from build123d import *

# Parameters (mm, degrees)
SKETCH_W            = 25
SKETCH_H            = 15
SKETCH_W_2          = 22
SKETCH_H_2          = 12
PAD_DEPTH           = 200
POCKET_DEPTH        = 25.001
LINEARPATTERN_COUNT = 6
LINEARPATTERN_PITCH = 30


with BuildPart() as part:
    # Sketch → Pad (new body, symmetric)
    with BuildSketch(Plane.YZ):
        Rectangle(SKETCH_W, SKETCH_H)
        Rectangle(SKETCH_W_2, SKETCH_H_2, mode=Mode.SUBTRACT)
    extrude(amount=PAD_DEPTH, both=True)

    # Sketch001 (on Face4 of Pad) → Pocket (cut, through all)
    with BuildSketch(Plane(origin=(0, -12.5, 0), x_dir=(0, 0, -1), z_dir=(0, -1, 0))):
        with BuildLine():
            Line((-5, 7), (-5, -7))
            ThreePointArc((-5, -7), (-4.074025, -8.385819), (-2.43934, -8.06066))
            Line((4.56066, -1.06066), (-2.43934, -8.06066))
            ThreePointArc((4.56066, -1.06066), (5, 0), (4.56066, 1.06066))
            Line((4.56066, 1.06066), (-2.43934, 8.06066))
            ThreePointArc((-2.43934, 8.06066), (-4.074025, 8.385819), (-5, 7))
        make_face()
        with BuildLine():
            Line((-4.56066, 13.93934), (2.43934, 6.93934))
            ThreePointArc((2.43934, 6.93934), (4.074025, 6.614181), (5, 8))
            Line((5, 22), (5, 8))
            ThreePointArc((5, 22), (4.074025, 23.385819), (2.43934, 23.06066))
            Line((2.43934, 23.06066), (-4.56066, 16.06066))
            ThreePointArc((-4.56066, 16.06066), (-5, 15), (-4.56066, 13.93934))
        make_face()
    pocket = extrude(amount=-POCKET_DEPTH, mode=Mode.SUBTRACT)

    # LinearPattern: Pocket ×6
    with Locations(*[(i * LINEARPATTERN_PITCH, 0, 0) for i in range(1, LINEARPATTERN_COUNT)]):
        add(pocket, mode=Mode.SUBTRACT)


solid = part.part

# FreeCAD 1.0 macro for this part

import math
import FreeCAD as App
import Part
import Sketcher

V = App.Vector

doc = App.newDocument("Part")
body = doc.addObject("PartDesign::Body", "Body")

sketch1 = body.newObject("Sketcher::SketchObject", "Sketch")
sketch1.AttachmentSupport = (doc.getObject("YZ_Plane"), [""])
sketch1.MapMode = "FlatFace"
sketch1.addGeometry([
    Part.LineSegment(V(-12, 8, 0), V(-12, -8, 0)),
    Part.LineSegment(V(-12, -8, 0), V(12, -8, 0)),
    Part.LineSegment(V(12, -8, 0), V(12, 8, 0)),
    Part.LineSegment(V(12, 8, 0), V(-12, 8, 0)),
    Part.LineSegment(V(11, -6, 0), V(-11, -6, 0)),
    Part.LineSegment(V(-11, -6, 0), V(-11, 6, 0)),
    Part.LineSegment(V(-11, 6, 0), V(11, 6, 0)),
    Part.LineSegment(V(11, 6, 0), V(11, -6, 0)),
], False)
sketch1.addConstraint([
    Sketcher.Constraint("Coincident", 0, 2, 1, 1),
    Sketcher.Constraint("Coincident", 1, 2, 2, 1),
    Sketcher.Constraint("Coincident", 2, 2, 3, 1),
    Sketcher.Constraint("Coincident", 3, 2, 0, 1),
    Sketcher.Constraint("Coincident", 4, 2, 5, 1),
    Sketcher.Constraint("Coincident", 5, 2, 6, 1),
    Sketcher.Constraint("Coincident", 6, 2, 7, 1),
    Sketcher.Constraint("Coincident", 7, 2, 4, 1),
    Sketcher.Constraint("Vertical", 0),
    Sketcher.Constraint("Horizontal", 1),
    Sketcher.Constraint("Vertical", 2),
    Sketcher.Constraint("Horizontal", 3),
    Sketcher.Constraint("Horizontal", 4),
    Sketcher.Constraint("Vertical", 5),
    Sketcher.Constraint("Horizontal", 6),
    Sketcher.Constraint("Vertical", 7),
    Sketcher.Constraint("Symmetric", 0, 2, 2, 2, -1, 1),
    Sketcher.Constraint("Symmetric", 4, 2, 6, 2, -1, 1),
    Sketcher.Constraint("DistanceX", 1, 1, 1, 2, 25.0),
    Sketcher.Constraint("DistanceX", 4, 2, 4, 1, 22.0),
    Sketcher.Constraint("DistanceY", 0, 2, 0, 1, 15.0),
    Sketcher.Constraint("DistanceY", 5, 1, 5, 2, 12.0),
])
pad1 = body.newObject("PartDesign::Pad", "Pad")
pad1.Profile = sketch1
pad1.Length = 400
pad1.Midplane = True

sketch2 = body.newObject("Sketcher::SketchObject", "Sketch001")
sketch2.AttachmentSupport = (doc.getObject("XZ_Plane"), [""])
sketch2.MapMode = "FlatFace"
sketch2.AttachmentOffset = App.Placement(V(0, 0, 12.5), App.Rotation())
sketch2.addGeometry([
    Part.LineSegment(V(7, 5, 0), V(-7, 5, 0)),
    Part.ArcOfCircle(Part.Circle(V(-7, 3.5, 0), V(0, 0, 1), 1.5), math.radians(90), math.radians(225)),
    Part.LineSegment(V(-8.1, 2.4, 0), V(-1.1, -4.6, 0)),
    Part.ArcOfCircle(Part.Circle(V(0, -3.5, 0), V(0, 0, 1), 1.5), math.radians(-135), math.radians(-45)),
    Part.LineSegment(V(1.1, -4.6, 0), V(8.1, 2.4, 0)),
    Part.ArcOfCircle(Part.Circle(V(7, 3.5, 0), V(0, 0, 1), 1.5), math.radians(-45), math.radians(90)),
    Part.LineSegment(V(13.9, 4.6, 0), V(6.9, -2.4, 0)),
    Part.ArcOfCircle(Part.Circle(V(8, -3.5, 0), V(0, 0, 1), 1.5), math.radians(135), math.radians(270)),
    Part.LineSegment(V(8, -5, 0), V(22, -5, 0)),
    Part.ArcOfCircle(Part.Circle(V(22, -3.5, 0), V(0, 0, 1), 1.5), math.radians(-90), math.radians(45)),
    Part.LineSegment(V(23.1, -2.4, 0), V(16.1, 4.6, 0)),
    Part.ArcOfCircle(Part.Circle(V(15, 3.5, 0), V(0, 0, 1), 1.5), math.radians(45), math.radians(135)),
], False)
sketch2.addConstraint([
    Sketcher.Constraint("Tangent", 0, 2, 1, 1),
    Sketcher.Constraint("Tangent", 1, 2, 2, 1),
    Sketcher.Constraint("Tangent", 2, 2, 3, 1),
    Sketcher.Constraint("Tangent", 3, 2, 4, 1),
    Sketcher.Constraint("Tangent", 4, 2, 5, 1),
    Sketcher.Constraint("Tangent", 5, 2, 0, 1),
    Sketcher.Constraint("Tangent", 6, 2, 7, 1),
    Sketcher.Constraint("Tangent", 7, 2, 8, 1),
    Sketcher.Constraint("Tangent", 8, 2, 9, 1),
    Sketcher.Constraint("Tangent", 9, 2, 10, 1),
    Sketcher.Constraint("Tangent", 10, 2, 11, 1),
    Sketcher.Constraint("Tangent", 11, 2, 6, 1),
    Sketcher.Constraint("Horizontal", 0),
    Sketcher.Constraint("Horizontal", 8),
    Sketcher.Constraint("Equal", 1, 3),
    Sketcher.Constraint("Equal", 3, 5),
    Sketcher.Constraint("Equal", 5, 7),
    Sketcher.Constraint("Equal", 7, 9),
    Sketcher.Constraint("Equal", 9, 11),
    Sketcher.Constraint("Symmetric", 2, 2, 3, 2, -2),
    Sketcher.Constraint("Perpendicular", 2, 4),
    Sketcher.Constraint("Parallel", 4, 6),
    Sketcher.Constraint("Perpendicular", 6, 10),
    Sketcher.Constraint("Horizontal", 3, 3, 7, 3),
    Sketcher.Constraint("Horizontal", 5, 3, 11, 3),
    Sketcher.Constraint("Radius", 1, 1.5),
    Sketcher.Constraint("DistanceX", 0, 2, 0, 1, 14.0),
    Sketcher.Constraint("DistanceX", -1, 1, 7, 3, 8.0),
    Sketcher.Constraint("DistanceY", -1, 1, 0, 2, 5.0),
])
pocket1 = body.newObject("PartDesign::Pocket", "Pocket")
pocket1.Profile = sketch2
pocket1.Type = "ThroughAll"
doc.recompute()

linearpattern = body.newObject("PartDesign::LinearPattern", "LinearPattern")
linearpattern.Originals = [pocket1]
linearpattern.Direction = (doc.getObject("X_Axis"), [""])
linearpattern.Mode = "offset"
linearpattern.Offset = 30
linearpattern.Occurrences = 6
body.Tip = linearpattern

doc.recompute()
